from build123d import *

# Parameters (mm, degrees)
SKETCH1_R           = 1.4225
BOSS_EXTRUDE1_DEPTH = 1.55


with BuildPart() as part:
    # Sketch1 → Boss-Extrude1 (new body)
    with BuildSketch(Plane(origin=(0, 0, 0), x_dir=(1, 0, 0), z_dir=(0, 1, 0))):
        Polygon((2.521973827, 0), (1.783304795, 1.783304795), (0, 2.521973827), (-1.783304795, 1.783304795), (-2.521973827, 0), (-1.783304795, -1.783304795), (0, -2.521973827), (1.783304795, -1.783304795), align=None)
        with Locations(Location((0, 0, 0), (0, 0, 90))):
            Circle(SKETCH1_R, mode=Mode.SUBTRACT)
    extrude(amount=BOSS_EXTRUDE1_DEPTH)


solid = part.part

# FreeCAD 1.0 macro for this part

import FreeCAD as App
import Part
import Sketcher
from FreeCAD import Vector
Q = App.Units.Quantity


def add_polygon(sketch, points):
    """Adds a closed chain of lines whose ends are joined by coincident constraints."""
    first, n = sketch.GeometryCount, len(points)
    for a, b in zip(points, points[1:] + points[:1]):
        sketch.addGeometry(Part.LineSegment(App.Vector(*a, 0), App.Vector(*b, 0)), False)
    for i in range(n):
        sketch.addConstraint(Sketcher.Constraint("Coincident", first + i, 2, first + (i + 1) % n, 1))

doc = App.newDocument("Part")
params = doc.addObject("Spreadsheet::Sheet", "Params")
for row, (alias, value) in enumerate([
    ("pad1_length", "1.55 mm"),
], start=1):
    params.set(f"A{row}", alias)
    params.set(f"B{row}", "=" + value)
    params.setAlias(f"B{row}", alias)

body = doc.addObject("PartDesign::Body", "Body")

sketch1 = doc.addObject("Sketcher::SketchObject", "Sketch")
body.addObject(sketch1)
sketch1.AttachmentSupport = (doc.XZ_Plane, [""])
sketch1.MapMode = "FlatFace"
add_polygon(sketch1, [(2.521974, 0), (1.783305, -1.783305), (0, -2.521974), (-1.783305, -1.783305), (-2.521974, 0), (-1.783305, 1.783305), (0, 2.521974), (1.783305, 1.783305)])
sketch1.addGeometry(Part.Circle(Vector(0, 0, 0), Vector(0, 0, 1), 1.4225), False)
sketch1.addConstraint([
    Sketcher.Constraint("Coincident", 8, 3, -1, 1),
    Sketcher.Constraint("Symmetric", 0, 2, 4, 2, -1, 1),
    Sketcher.Constraint("Symmetric", 1, 2, 5, 2, -1, 1),
    Sketcher.Constraint("Symmetric", 2, 2, 6, 2, -1, 1),
    Sketcher.Constraint("Symmetric", 3, 2, 7, 2, -1, 1),
    Sketcher.Constraint("Symmetric", 0, 2, 2, 2, -2),
    Sketcher.Constraint("PointOnObject", 1, 2, -2),
    Sketcher.Constraint("PointOnObject", 3, 2, -1),
    Sketcher.Constraint("Perpendicular", 0, 2),
    Sketcher.Constraint("Equal", 0, 1),
    Sketcher.Constraint("Diameter", 8, Q("2.845 mm")),
    Sketcher.Constraint("Angle", 0, Q("-112.5 deg")),
    Sketcher.Constraint("DistanceY", 1, 2, 0, 2, Q("0.738669 mm")),
])
pad1 = doc.addObject("PartDesign::Pad", "Pad")
body.addObject(pad1)
pad1.Profile = sketch1
pad1.setExpression("Length", "Params.pad1_length")
pad1.Reversed = True

doc.recompute()
